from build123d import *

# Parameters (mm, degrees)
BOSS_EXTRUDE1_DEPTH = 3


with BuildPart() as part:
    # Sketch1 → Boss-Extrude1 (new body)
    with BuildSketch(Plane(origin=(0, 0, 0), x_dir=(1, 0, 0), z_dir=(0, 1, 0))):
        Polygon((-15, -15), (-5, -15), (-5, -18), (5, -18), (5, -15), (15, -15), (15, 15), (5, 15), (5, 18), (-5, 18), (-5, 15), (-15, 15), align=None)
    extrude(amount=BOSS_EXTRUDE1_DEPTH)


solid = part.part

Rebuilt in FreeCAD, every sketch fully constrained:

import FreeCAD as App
import Part
import Sketcher
from FreeCAD import Vector


def add_polygon(sketch, points):
    """Adds a closed chain of lines whose ends are joined by coincident constraints."""
    first, n = sketch.GeometryCount, len(points)
    for a, b in zip(points, points[1:] + points[:1]):
        sketch.addGeometry(Part.LineSegment(App.Vector(*a, 0), App.Vector(*b, 0)), False)
    for i in range(n):
        sketch.addConstraint(Sketcher.Constraint("Coincident", first + i, 2, first + (i + 1) % n, 1))

doc = App.newDocument("Part")
body = doc.addObject("PartDesign::Body", "Body")

sketch1 = body.newObject("Sketcher::SketchObject", "Sketch")
sketch1.AttachmentSupport = (doc.getObject("XZ_Plane"), [""])
sketch1.MapMode = "FlatFace"
add_polygon(sketch1, [(-15, 15), (-5, 15), (-5, 18), (5, 18), (5, 15), (15, 15), (15, -15), (5, -15), (5, -18), (-5, -18), (-5, -15), (-15, -15)])
sketch1.addConstraint(Sketcher.Constraint("Horizontal", 0))
sketch1.addConstraint(Sketcher.Constraint("Vertical", 1))
sketch1.addConstraint(Sketcher.Constraint("Horizontal", 2))
sketch1.addConstraint(Sketcher.Constraint("Vertical", 3))
sketch1.addConstraint(Sketcher.Constraint("Horizontal", 4))
sketch1.addConstraint(Sketcher.Constraint("Vertical", 5))
sketch1.addConstraint(Sketcher.Constraint("Horizontal", 6))
sketch1.addConstraint(Sketcher.Constraint("Vertical", 7))
sketch1.addConstraint(Sketcher.Constraint("Horizontal", 8))
sketch1.addConstraint(Sketcher.Constraint("Vertical", 9))
sketch1.addConstraint(Sketcher.Constraint("Horizontal", 10))
sketch1.addConstraint(Sketcher.Constraint("Vertical", 11))
sketch1.addConstraint(Sketcher.Constraint("Symmetric", 0, 2, 6, 2, -1, 1))
sketch1.addConstraint(Sketcher.Constraint("Symmetric", 2, 2, 8, 2, -1, 1))
sketch1.addConstraint(Sketcher.Constraint("Symmetric", 4, 2, 10, 2, -1, 1))
sketch1.addConstraint(Sketcher.Constraint("Symmetric", 0, 2, 3, 2, -2))
sketch1.addConstraint(Sketcher.Constraint("Equal", 0, 2))
sketch1.addConstraint(Sketcher.Constraint("DistanceX", 0, 1, 0, 2, 10.0))
sketch1.addConstraint(Sketcher.Constraint("DistanceY", 1, 1, 1, 2, 3.0))
sketch1.addConstraint(Sketcher.Constraint("DistanceY", 5, 2, 5, 1, 30.0))
pad1 = body.newObject("PartDesign::Pad", "Pad")
pad1.Profile = sketch1
pad1.Length = 3
pad1.Reversed = True

doc.recompute()
